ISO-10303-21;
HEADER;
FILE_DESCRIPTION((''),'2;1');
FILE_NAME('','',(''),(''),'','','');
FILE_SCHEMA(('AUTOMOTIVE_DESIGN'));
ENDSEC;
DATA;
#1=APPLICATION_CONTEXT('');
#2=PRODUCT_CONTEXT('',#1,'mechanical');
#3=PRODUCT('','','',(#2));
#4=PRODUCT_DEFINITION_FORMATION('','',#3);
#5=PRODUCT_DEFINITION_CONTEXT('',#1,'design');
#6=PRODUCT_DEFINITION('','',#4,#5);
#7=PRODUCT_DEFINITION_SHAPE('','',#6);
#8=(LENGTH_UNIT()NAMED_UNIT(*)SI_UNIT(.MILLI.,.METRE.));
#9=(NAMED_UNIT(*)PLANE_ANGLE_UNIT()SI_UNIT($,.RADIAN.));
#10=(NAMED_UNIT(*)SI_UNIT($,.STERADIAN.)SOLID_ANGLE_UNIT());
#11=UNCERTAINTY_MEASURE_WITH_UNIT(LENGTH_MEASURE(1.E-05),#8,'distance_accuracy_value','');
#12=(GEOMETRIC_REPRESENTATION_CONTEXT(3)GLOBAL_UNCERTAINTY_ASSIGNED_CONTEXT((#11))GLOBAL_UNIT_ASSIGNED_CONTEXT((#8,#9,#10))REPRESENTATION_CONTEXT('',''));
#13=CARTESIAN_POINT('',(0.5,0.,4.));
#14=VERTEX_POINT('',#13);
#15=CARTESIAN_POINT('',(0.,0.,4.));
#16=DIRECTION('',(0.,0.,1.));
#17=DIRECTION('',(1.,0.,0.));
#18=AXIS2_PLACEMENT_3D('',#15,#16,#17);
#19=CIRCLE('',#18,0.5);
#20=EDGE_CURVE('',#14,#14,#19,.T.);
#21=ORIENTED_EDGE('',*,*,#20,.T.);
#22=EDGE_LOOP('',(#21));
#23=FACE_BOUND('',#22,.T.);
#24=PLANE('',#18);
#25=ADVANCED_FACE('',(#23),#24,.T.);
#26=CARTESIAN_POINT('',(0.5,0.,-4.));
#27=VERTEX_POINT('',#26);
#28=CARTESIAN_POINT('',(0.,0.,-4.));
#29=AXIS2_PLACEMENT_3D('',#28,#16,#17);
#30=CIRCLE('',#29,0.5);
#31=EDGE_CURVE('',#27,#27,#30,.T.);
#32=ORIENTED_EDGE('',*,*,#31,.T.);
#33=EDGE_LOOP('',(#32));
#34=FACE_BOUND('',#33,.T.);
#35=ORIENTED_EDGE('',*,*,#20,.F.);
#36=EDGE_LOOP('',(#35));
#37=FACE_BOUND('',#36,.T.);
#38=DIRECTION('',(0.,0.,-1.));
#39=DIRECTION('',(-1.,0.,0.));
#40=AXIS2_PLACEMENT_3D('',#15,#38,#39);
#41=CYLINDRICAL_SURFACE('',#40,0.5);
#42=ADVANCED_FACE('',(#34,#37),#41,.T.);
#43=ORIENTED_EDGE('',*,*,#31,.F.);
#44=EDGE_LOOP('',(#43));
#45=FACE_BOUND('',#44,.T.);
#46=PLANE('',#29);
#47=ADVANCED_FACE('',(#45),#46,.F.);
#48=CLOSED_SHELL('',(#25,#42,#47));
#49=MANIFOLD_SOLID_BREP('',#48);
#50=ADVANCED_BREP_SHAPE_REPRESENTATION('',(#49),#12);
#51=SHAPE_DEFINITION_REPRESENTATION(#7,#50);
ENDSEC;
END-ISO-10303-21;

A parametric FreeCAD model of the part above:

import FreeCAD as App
import Part
import Sketcher

doc = App.newDocument("Part")
params = doc.addObject("Spreadsheet::Sheet", "Params")
for row, (alias, value) in enumerate([
    ("sketch1_diameter", "1 mm"),
    ("pad1_length", "8 mm"),
], start=1):
    params.set(f"A{row}", alias)
    params.set(f"B{row}", "=" + value)
    params.setAlias(f"B{row}", alias)

body = doc.addObject("PartDesign::Body", "Body")

# Sketch on XY plane
sketch1 = body.newObject("Sketcher::SketchObject", "Sketch")
sketch1.AttachmentSupport = (doc.getObject("XY_Plane"), [""])
sketch1.MapMode = "FlatFace"
sketch1.AttachmentOffset = App.Placement(App.Vector(0, 0, -4), App.Rotation())
sketch1.addGeometry(Part.Circle(App.Vector(0, 0, 0), App.Vector(0, 0, 1), 0.5), False)
sketch1.addConstraint(Sketcher.Constraint("Coincident", 0, 3, -1, 1))
sketch1.addConstraint(Sketcher.Constraint("Diameter", 0, 1.0))
sketch1.setExpression("Constraints[1]", "Params.sketch1_diameter")
pad1 = body.newObject("PartDesign::Pad", "Pad")
pad1.Profile = sketch1
pad1.setExpression("Length", "Params.pad1_length")

doc.recompute()
